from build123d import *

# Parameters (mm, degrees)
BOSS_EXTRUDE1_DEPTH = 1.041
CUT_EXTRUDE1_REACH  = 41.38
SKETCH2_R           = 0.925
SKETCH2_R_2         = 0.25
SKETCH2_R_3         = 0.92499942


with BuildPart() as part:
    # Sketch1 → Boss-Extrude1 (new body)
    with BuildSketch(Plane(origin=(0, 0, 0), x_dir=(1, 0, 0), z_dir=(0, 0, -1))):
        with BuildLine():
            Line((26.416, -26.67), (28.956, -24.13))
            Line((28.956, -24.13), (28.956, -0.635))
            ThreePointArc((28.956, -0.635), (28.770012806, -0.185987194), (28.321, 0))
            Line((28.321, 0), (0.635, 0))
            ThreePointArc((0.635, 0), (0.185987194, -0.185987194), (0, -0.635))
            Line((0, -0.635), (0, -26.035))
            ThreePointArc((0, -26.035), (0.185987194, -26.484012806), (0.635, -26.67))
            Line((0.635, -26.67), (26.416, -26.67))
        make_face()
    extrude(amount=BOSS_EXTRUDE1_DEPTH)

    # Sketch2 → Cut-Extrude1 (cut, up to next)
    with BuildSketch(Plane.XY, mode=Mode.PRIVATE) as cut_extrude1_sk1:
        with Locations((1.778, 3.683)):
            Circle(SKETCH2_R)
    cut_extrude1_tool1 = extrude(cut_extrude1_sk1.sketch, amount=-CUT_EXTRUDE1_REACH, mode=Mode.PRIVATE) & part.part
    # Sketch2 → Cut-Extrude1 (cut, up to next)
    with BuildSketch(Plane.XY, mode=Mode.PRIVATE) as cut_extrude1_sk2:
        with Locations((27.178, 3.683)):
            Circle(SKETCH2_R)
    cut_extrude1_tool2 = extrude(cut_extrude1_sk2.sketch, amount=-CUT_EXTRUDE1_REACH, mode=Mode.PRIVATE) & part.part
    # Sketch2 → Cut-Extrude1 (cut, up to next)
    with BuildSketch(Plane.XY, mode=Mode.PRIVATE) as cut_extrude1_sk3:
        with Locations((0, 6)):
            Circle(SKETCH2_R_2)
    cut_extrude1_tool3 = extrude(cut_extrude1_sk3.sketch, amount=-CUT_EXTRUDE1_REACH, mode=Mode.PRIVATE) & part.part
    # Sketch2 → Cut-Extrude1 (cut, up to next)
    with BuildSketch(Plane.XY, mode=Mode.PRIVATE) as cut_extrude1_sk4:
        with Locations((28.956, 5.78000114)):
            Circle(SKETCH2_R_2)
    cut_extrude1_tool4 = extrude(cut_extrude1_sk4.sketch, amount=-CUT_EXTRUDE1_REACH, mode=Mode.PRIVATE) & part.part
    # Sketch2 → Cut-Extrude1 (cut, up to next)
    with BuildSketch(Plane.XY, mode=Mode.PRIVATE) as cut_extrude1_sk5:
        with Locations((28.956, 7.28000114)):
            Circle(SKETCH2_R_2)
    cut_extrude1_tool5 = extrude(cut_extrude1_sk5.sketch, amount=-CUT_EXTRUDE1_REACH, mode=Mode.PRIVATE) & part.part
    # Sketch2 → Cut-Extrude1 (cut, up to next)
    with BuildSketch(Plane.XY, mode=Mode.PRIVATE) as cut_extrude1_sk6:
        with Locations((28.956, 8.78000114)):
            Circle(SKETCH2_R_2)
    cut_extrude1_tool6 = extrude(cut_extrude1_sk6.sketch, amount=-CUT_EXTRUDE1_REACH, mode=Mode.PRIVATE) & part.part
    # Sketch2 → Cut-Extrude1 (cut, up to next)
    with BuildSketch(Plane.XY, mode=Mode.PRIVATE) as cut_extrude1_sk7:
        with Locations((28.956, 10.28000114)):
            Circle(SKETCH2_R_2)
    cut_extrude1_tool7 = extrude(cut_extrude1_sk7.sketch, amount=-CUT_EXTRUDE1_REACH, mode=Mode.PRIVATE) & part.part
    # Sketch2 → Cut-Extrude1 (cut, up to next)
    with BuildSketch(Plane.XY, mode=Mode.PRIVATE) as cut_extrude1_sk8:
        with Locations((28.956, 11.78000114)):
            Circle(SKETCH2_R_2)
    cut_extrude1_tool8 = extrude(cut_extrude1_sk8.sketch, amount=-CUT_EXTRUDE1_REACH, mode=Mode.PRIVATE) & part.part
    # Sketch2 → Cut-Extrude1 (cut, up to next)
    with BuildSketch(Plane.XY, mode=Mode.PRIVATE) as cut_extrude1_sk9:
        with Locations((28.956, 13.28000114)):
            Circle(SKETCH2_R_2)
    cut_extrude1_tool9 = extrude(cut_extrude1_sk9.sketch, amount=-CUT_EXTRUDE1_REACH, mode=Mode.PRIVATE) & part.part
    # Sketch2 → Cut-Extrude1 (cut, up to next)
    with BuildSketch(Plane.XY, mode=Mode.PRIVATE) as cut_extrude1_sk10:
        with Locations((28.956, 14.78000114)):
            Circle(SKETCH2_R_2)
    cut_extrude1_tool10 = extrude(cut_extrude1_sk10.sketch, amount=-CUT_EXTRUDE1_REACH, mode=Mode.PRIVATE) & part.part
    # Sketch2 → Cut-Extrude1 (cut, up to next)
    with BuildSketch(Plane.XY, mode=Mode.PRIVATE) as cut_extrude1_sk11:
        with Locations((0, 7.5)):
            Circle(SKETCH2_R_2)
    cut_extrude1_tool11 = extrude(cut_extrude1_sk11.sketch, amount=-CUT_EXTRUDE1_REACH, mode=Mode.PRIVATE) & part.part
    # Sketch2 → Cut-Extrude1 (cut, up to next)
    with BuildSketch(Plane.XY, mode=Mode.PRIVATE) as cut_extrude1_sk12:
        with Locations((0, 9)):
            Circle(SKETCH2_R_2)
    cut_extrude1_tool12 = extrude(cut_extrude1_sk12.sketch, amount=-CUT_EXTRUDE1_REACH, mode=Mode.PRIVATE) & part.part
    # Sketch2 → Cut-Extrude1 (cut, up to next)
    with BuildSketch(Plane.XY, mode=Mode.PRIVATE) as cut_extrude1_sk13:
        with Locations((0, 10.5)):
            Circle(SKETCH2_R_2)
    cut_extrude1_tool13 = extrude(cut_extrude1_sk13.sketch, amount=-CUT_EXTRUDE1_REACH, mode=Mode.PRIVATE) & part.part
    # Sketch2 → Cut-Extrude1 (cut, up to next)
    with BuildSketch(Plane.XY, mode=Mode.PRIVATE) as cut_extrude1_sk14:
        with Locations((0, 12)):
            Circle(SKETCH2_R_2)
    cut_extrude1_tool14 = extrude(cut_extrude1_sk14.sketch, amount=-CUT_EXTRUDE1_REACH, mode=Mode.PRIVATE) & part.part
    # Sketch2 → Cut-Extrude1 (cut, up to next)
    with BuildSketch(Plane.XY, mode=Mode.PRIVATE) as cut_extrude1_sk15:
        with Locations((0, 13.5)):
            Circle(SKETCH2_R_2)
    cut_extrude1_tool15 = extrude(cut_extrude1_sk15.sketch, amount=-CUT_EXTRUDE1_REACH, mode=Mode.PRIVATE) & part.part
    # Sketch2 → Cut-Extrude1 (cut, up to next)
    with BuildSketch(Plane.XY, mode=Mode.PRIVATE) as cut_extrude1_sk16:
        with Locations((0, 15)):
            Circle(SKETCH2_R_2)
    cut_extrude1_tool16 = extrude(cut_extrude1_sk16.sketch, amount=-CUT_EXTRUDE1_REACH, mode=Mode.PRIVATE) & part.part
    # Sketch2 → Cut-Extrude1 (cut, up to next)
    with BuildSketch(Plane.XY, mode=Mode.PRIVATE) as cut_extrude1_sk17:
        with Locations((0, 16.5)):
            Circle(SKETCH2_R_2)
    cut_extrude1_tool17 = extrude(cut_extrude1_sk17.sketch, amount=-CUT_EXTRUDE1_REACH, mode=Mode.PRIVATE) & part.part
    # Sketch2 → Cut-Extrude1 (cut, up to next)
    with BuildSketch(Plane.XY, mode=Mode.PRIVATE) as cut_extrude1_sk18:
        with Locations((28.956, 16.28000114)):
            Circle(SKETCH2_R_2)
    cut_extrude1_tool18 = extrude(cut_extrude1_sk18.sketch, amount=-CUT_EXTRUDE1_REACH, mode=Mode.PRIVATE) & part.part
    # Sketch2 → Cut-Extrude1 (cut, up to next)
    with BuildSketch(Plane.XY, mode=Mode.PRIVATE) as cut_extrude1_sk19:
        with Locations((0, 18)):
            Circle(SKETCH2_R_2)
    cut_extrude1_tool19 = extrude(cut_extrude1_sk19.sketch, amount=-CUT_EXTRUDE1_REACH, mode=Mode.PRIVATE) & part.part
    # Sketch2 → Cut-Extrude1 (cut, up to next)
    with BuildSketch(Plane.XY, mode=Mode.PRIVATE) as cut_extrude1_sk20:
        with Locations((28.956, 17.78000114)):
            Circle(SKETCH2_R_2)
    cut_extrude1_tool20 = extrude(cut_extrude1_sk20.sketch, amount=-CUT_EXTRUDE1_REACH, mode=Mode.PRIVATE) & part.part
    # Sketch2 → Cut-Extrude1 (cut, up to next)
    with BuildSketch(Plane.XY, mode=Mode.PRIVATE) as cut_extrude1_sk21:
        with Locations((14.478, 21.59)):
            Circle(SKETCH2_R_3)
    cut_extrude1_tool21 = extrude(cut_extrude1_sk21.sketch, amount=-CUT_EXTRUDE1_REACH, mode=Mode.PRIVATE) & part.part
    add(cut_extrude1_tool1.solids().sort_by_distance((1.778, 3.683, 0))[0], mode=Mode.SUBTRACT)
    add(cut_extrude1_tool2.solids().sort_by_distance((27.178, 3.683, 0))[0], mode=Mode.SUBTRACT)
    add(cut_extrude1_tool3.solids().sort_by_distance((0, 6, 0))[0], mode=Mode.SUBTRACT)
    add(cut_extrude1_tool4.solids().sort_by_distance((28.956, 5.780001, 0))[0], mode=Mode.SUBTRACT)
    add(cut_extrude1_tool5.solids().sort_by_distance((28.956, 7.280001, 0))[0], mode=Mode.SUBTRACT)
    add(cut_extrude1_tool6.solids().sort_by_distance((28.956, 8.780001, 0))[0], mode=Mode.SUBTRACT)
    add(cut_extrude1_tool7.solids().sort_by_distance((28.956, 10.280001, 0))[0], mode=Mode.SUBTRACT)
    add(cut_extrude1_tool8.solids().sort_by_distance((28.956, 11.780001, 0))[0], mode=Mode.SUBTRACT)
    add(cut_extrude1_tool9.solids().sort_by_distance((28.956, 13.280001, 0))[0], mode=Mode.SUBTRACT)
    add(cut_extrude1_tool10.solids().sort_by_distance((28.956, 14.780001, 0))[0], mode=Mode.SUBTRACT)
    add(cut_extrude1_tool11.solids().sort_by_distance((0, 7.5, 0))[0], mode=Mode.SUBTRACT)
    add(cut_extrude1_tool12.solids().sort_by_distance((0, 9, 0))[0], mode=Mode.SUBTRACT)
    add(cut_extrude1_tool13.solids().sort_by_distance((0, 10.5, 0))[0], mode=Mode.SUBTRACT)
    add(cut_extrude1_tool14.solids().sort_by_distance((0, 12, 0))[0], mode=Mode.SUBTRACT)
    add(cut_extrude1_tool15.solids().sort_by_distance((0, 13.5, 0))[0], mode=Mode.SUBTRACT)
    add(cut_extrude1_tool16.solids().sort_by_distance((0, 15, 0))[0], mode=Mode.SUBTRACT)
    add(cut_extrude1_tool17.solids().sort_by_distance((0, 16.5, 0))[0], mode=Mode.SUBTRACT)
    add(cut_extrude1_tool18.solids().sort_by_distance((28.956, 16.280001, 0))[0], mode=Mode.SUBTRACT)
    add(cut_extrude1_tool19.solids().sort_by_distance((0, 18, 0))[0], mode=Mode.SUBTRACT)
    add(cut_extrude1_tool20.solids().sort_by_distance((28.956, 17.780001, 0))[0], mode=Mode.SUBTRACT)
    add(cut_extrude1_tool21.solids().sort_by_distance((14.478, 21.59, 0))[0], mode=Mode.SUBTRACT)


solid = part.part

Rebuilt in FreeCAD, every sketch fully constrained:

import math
import FreeCAD as App
import Part
import Sketcher

V = App.Vector
Q = App.Units.Quantity

doc = App.newDocument("Part")
body = doc.addObject("PartDesign::Body", "Body")

# Sketch on XY plane
sketch1 = doc.addObject("Sketcher::SketchObject", "Sketch")
body.addObject(sketch1)
sketch1.AttachmentSupport = (doc.XY_Plane, [""])
sketch1.MapMode = "FlatFace"
sketch1.addGeometry([
    Part.LineSegment(V(26.4, 26.7, 0), V(29, 24.1, 0)),  # 0
    Part.LineSegment(V(29, 24.1, 0), V(29, 0.6, 0)),  # 1
    Part.ArcOfCircle(Part.Circle(V(28.3, 0.6, 0), V(0, 0, 1), 0.6), math.radians(-90), math.radians(0)),  # 2
    Part.LineSegment(V(28.3, 0, 0), V(0.6, 0, 0)),  # 3
    Part.ArcOfCircle(Part.Circle(V(0.6, 0.6, 0), V(0, 0, 1), 0.6), math.radians(180), math.radians(270)),  # 4
    Part.LineSegment(V(0, 0.6, 0), V(0, 26, 0)),  # 5
    Part.ArcOfCircle(Part.Circle(V(0.6, 26, 0), V(0, 0, 1), 0.6), math.radians(90), math.radians(180)),  # 6
    Part.LineSegment(V(0.6, 26.7, 0), V(26.4, 26.7, 0)),  # 7
], False)
sketch1.addConstraint([
    Sketcher.Constraint("Coincident", 0, 2, 1, 1),
    Sketcher.Constraint("Tangent", 1, 2, 2, 2),
    Sketcher.Constraint("Tangent", 2, 1, 3, 1),
    Sketcher.Constraint("Tangent", 3, 2, 4, 2),
    Sketcher.Constraint("Tangent", 4, 1, 5, 1),
    Sketcher.Constraint("Tangent", 5, 2, 6, 2),
    Sketcher.Constraint("Tangent", 6, 1, 7, 1),
    Sketcher.Constraint("Coincident", 7, 2, 0, 1),
    Sketcher.Constraint("Vertical", 1),
    Sketcher.Constraint("Horizontal", 3),
    Sketcher.Constraint("Vertical", 5),
    Sketcher.Constraint("Horizontal", 7),
    Sketcher.Constraint("Equal", 2, 4),
    Sketcher.Constraint("Equal", 4, 6),
    Sketcher.Constraint("PointOnObject", 2, 1, -1),
    Sketcher.Constraint("PointOnObject", 4, 1, -2),
    Sketcher.Constraint("DistanceY", 5, 1, 5, 2, Q("1 in")),
    Sketcher.Constraint("Angle", 0, Q("-45 deg")),
    Sketcher.Constraint("Radius", 2, Q("0.025 in")),
    Sketcher.Constraint("DistanceX", 3, 2, 3, 1, Q("1.09 in")),
    Sketcher.Constraint("DistanceX", 7, 2, 0, 2, Q("0.1 in")),
])
pad1 = doc.addObject("PartDesign::Pad", "Pad")
body.addObject(pad1)
pad1.Profile = sketch1
pad1.Length = 1.041
pad1.Reversed = True

# Sketch on XY plane
sketch2 = doc.addObject("Sketcher::SketchObject", "Sketch001")
body.addObject(sketch2)
sketch2.AttachmentSupport = (doc.XY_Plane, [""])
sketch2.MapMode = "FlatFace"
sketch2.addGeometry(Part.Circle(V(1.8, 3.7, 0), V(0, 0, 1), 0.9), False)
sketch2.addConstraint([
    Sketcher.Constraint("Diameter", 0, Q("1.85 mm")),
    Sketcher.Constraint("DistanceX", -1, 1, 0, 3, Q("0.07 in")),
    Sketcher.Constraint("DistanceY", -1, 1, 0, 3, Q("0.145 in")),
])
pocket1 = doc.addObject("PartDesign::Pocket", "Pocket")
body.addObject(pocket1)
pocket1.Profile = sketch2
pocket1.Type = "UpToFirst"

# Sketch on XY plane
sketch3 = doc.addObject("Sketcher::SketchObject", "Sketch002")
body.addObject(sketch3)
sketch3.AttachmentSupport = (doc.XY_Plane, [""])
sketch3.MapMode = "FlatFace"
sketch3.addGeometry(Part.Circle(V(27.2, 3.7, 0), V(0, 0, 1), 0.9), False)
sketch3.addConstraint([
    Sketcher.Constraint("Diameter", 0, Q("1.85 mm")),
    Sketcher.Constraint("DistanceX", -1, 1, 0, 3, Q("1.07 in")),
    Sketcher.Constraint("DistanceY", -1, 1, 0, 3, Q("0.145 in")),
])
pocket2 = doc.addObject("PartDesign::Pocket", "Pocket001")
body.addObject(pocket2)
pocket2.Profile = sketch3
pocket2.Type = "UpToFirst"

# Sketch on XY plane
sketch4 = doc.addObject("Sketcher::SketchObject", "Sketch003")
body.addObject(sketch4)
sketch4.AttachmentSupport = (doc.XY_Plane, [""])
sketch4.MapMode = "FlatFace"
sketch4.addGeometry(Part.Circle(V(0, 6, 0), V(0, 0, 1), 0.25), False)
sketch4.addConstraint([
    Sketcher.Constraint("PointOnObject", 0, 3, -2),
    Sketcher.Constraint("Diameter", 0, Q("0.5 mm")),
    Sketcher.Constraint("DistanceY", -1, 1, 0, 3, Q("6 mm")),
])
pocket3 = doc.addObject("PartDesign::Pocket", "Pocket002")
body.addObject(pocket3)
pocket3.Profile = sketch4
pocket3.Type = "UpToFirst"

# Sketch on XY plane
sketch5 = doc.addObject("Sketcher::SketchObject", "Sketch004")
body.addObject(sketch5)
sketch5.AttachmentSupport = (doc.XY_Plane, [""])
sketch5.MapMode = "FlatFace"
sketch5.addGeometry(Part.Circle(V(28.96, 5.78, 0), V(0, 0, 1), 0.25), False)
sketch5.addConstraint([
    Sketcher.Constraint("Diameter", 0, Q("0.5 mm")),
    Sketcher.Constraint("DistanceX", -1, 1, 0, 3, Q("1.14 in")),
    Sketcher.Constraint("DistanceY", -1, 1, 0, 3, Q("5.780001 mm")),
])
pocket4 = doc.addObject("PartDesign::Pocket", "Pocket003")
body.addObject(pocket4)
pocket4.Profile = sketch5
pocket4.Type = "UpToFirst"

# Sketch on XY plane
sketch6 = doc.addObject("Sketcher::SketchObject", "Sketch005")
body.addObject(sketch6)
sketch6.AttachmentSupport = (doc.XY_Plane, [""])
sketch6.MapMode = "FlatFace"
sketch6.addGeometry(Part.Circle(V(28.96, 7.28, 0), V(0, 0, 1), 0.25), False)
sketch6.addConstraint([
    Sketcher.Constraint("Diameter", 0, Q("0.5 mm")),
    Sketcher.Constraint("DistanceX", -1, 1, 0, 3, Q("1.14 in")),
    Sketcher.Constraint("DistanceY", -1, 1, 0, 3, Q("7.280001 mm")),
])
pocket5 = doc.addObject("PartDesign::Pocket", "Pocket004")
body.addObject(pocket5)
pocket5.Profile = sketch6
pocket5.Type = "UpToFirst"

# Sketch on XY plane
sketch7 = doc.addObject("Sketcher::SketchObject", "Sketch006")
body.addObject(sketch7)
sketch7.AttachmentSupport = (doc.XY_Plane, [""])
sketch7.MapMode = "FlatFace"
sketch7.addGeometry(Part.Circle(V(28.96, 8.78, 0), V(0, 0, 1), 0.25), False)
sketch7.addConstraint([
    Sketcher.Constraint("Diameter", 0, Q("0.5 mm")),
    Sketcher.Constraint("DistanceX", -1, 1, 0, 3, Q("1.14 in")),
    Sketcher.Constraint("DistanceY", -1, 1, 0, 3, Q("8.780001 mm")),
])
pocket6 = doc.addObject("PartDesign::Pocket", "Pocket005")
body.addObject(pocket6)
pocket6.Profile = sketch7
pocket6.Type = "UpToFirst"

# Sketch on XY plane
sketch8 = doc.addObject("Sketcher::SketchObject", "Sketch007")
body.addObject(sketch8)
sketch8.AttachmentSupport = (doc.XY_Plane, [""])
sketch8.MapMode = "FlatFace"
sketch8.addGeometry(Part.Circle(V(28.96, 10.28, 0), V(0, 0, 1), 0.25), False)
sketch8.addConstraint([
    Sketcher.Constraint("Diameter", 0, Q("0.5 mm")),
    Sketcher.Constraint("DistanceX", -1, 1, 0, 3, Q("1.14 in")),
    Sketcher.Constraint("DistanceY", -1, 1, 0, 3, Q("10.280001 mm")),
])
pocket7 = doc.addObject("PartDesign::Pocket", "Pocket006")
body.addObject(pocket7)
pocket7.Profile = sketch8
pocket7.Type = "UpToFirst"

# Sketch on XY plane
sketch9 = doc.addObject("Sketcher::SketchObject", "Sketch008")
body.addObject(sketch9)
sketch9.AttachmentSupport = (doc.XY_Plane, [""])
sketch9.MapMode = "FlatFace"
sketch9.addGeometry(Part.Circle(V(28.96, 11.78, 0), V(0, 0, 1), 0.25), False)
sketch9.addConstraint([
    Sketcher.Constraint("Diameter", 0, Q("0.5 mm")),
    Sketcher.Constraint("DistanceX", -1, 1, 0, 3, Q("1.14 in")),
    Sketcher.Constraint("DistanceY", -1, 1, 0, 3, Q("11.780001 mm")),
])
pocket8 = doc.addObject("PartDesign::Pocket", "Pocket007")
body.addObject(pocket8)
pocket8.Profile = sketch9
pocket8.Type = "UpToFirst"

# Sketch on XY plane
sketch10 = doc.addObject("Sketcher::SketchObject", "Sketch009")
body.addObject(sketch10)
sketch10.AttachmentSupport = (doc.XY_Plane, [""])
sketch10.MapMode = "FlatFace"
sketch10.addGeometry(Part.Circle(V(28.96, 13.28, 0), V(0, 0, 1), 0.25), False)
sketch10.addConstraint([
    Sketcher.Constraint("Diameter", 0, Q("0.5 mm")),
    Sketcher.Constraint("DistanceX", -1, 1, 0, 3, Q("1.14 in")),
    Sketcher.Constraint("DistanceY", -1, 1, 0, 3, Q("13.280001 mm")),
])
pocket9 = doc.addObject("PartDesign::Pocket", "Pocket008")
body.addObject(pocket9)
pocket9.Profile = sketch10
pocket9.Type = "UpToFirst"

# Sketch on XY plane
sketch11 = doc.addObject("Sketcher::SketchObject", "Sketch010")
body.addObject(sketch11)
sketch11.AttachmentSupport = (doc.XY_Plane, [""])
sketch11.MapMode = "FlatFace"
sketch11.addGeometry(Part.Circle(V(28.96, 14.78, 0), V(0, 0, 1), 0.25), False)
sketch11.addConstraint([
    Sketcher.Constraint("Diameter", 0, Q("0.5 mm")),
    Sketcher.Constraint("DistanceX", -1, 1, 0, 3, Q("1.14 in")),
    Sketcher.Constraint("DistanceY", -1, 1, 0, 3, Q("14.780001 mm")),
])
pocket10 = doc.addObject("PartDesign::Pocket", "Pocket009")
body.addObject(pocket10)
pocket10.Profile = sketch11
pocket10.Type = "UpToFirst"

# Sketch on XY plane
sketch12 = doc.addObject("Sketcher::SketchObject", "Sketch011")
body.addObject(sketch12)
sketch12.AttachmentSupport = (doc.XY_Plane, [""])
sketch12.MapMode = "FlatFace"
sketch12.addGeometry(Part.Circle(V(0, 7.5, 0), V(0, 0, 1), 0.25), False)
sketch12.addConstraint([
    Sketcher.Constraint("PointOnObject", 0, 3, -2),
    Sketcher.Constraint("Diameter", 0, Q("0.5 mm")),
    Sketcher.Constraint("DistanceY", -1, 1, 0, 3, Q("7.5 mm")),
])
pocket11 = doc.addObject("PartDesign::Pocket", "Pocket010")
body.addObject(pocket11)
pocket11.Profile = sketch12
pocket11.Type = "UpToFirst"

# Sketch on XY plane
sketch13 = doc.addObject("Sketcher::SketchObject", "Sketch012")
body.addObject(sketch13)
sketch13.AttachmentSupport = (doc.XY_Plane, [""])
sketch13.MapMode = "FlatFace"
sketch13.addGeometry(Part.Circle(V(0, 9, 0), V(0, 0, 1), 0.25), False)
sketch13.addConstraint([
    Sketcher.Constraint("PointOnObject", 0, 3, -2),
    Sketcher.Constraint("Diameter", 0, Q("0.5 mm")),
    Sketcher.Constraint("DistanceY", -1, 1, 0, 3, Q("9 mm")),
])
pocket12 = doc.addObject("PartDesign::Pocket", "Pocket011")
body.addObject(pocket12)
pocket12.Profile = sketch13
pocket12.Type = "UpToFirst"

# Sketch on XY plane
sketch14 = doc.addObject("Sketcher::SketchObject", "Sketch013")
body.addObject(sketch14)
sketch14.AttachmentSupport = (doc.XY_Plane, [""])
sketch14.MapMode = "FlatFace"
sketch14.addGeometry(Part.Circle(V(0, 10.5, 0), V(0, 0, 1), 0.25), False)
sketch14.addConstraint([
    Sketcher.Constraint("PointOnObject", 0, 3, -2),
    Sketcher.Constraint("Diameter", 0, Q("0.5 mm")),
    Sketcher.Constraint("DistanceY", -1, 1, 0, 3, Q("10.5 mm")),
])
pocket13 = doc.addObject("PartDesign::Pocket", "Pocket012")
body.addObject(pocket13)
pocket13.Profile = sketch14
pocket13.Type = "UpToFirst"

# Sketch on XY plane
sketch15 = doc.addObject("Sketcher::SketchObject", "Sketch014")
body.addObject(sketch15)
sketch15.AttachmentSupport = (doc.XY_Plane, [""])
sketch15.MapMode = "FlatFace"
sketch15.addGeometry(Part.Circle(V(0, 12, 0), V(0, 0, 1), 0.25), False)
sketch15.addConstraint([
    Sketcher.Constraint("PointOnObject", 0, 3, -2),
    Sketcher.Constraint("Diameter", 0, Q("0.5 mm")),
    Sketcher.Constraint("DistanceY", -1, 1, 0, 3, Q("12 mm")),
])
pocket14 = doc.addObject("PartDesign::Pocket", "Pocket013")
body.addObject(pocket14)
pocket14.Profile = sketch15
pocket14.Type = "UpToFirst"

# Sketch on XY plane
sketch16 = doc.addObject("Sketcher::SketchObject", "Sketch015")
body.addObject(sketch16)
sketch16.AttachmentSupport = (doc.XY_Plane, [""])
sketch16.MapMode = "FlatFace"
sketch16.addGeometry(Part.Circle(V(0, 13.5, 0), V(0, 0, 1), 0.25), False)
sketch16.addConstraint([
    Sketcher.Constraint("PointOnObject", 0, 3, -2),
    Sketcher.Constraint("Diameter", 0, Q("0.5 mm")),
    Sketcher.Constraint("DistanceY", -1, 1, 0, 3, Q("13.5 mm")),
])
pocket15 = doc.addObject("PartDesign::Pocket", "Pocket014")
body.addObject(pocket15)
pocket15.Profile = sketch16
pocket15.Type = "UpToFirst"

# Sketch on XY plane
sketch17 = doc.addObject("Sketcher::SketchObject", "Sketch016")
body.addObject(sketch17)
sketch17.AttachmentSupport = (doc.XY_Plane, [""])
sketch17.MapMode = "FlatFace"
sketch17.addGeometry(Part.Circle(V(0, 15, 0), V(0, 0, 1), 0.25), False)
sketch17.addConstraint([
    Sketcher.Constraint("PointOnObject", 0, 3, -2),
    Sketcher.Constraint("Diameter", 0, Q("0.5 mm")),
    Sketcher.Constraint("DistanceY", -1, 1, 0, 3, Q("15 mm")),
])
pocket16 = doc.addObject("PartDesign::Pocket", "Pocket015")
body.addObject(pocket16)
pocket16.Profile = sketch17
pocket16.Type = "UpToFirst"

# Sketch on XY plane
sketch18 = doc.addObject("Sketcher::SketchObject", "Sketch017")
body.addObject(sketch18)
sketch18.AttachmentSupport = (doc.XY_Plane, [""])
sketch18.MapMode = "FlatFace"
sketch18.addGeometry(Part.Circle(V(0, 16.5, 0), V(0, 0, 1), 0.25), False)
sketch18.addConstraint([
    Sketcher.Constraint("PointOnObject", 0, 3, -2),
    Sketcher.Constraint("Diameter", 0, Q("0.5 mm")),
    Sketcher.Constraint("DistanceY", -1, 1, 0, 3, Q("16.5 mm")),
])
pocket17 = doc.addObject("PartDesign::Pocket", "Pocket016")
body.addObject(pocket17)
pocket17.Profile = sketch18
pocket17.Type = "UpToFirst"

# Sketch on XY plane
sketch19 = doc.addObject("Sketcher::SketchObject", "Sketch018")
body.addObject(sketch19)
sketch19.AttachmentSupport = (doc.XY_Plane, [""])
sketch19.MapMode = "FlatFace"
sketch19.addGeometry(Part.Circle(V(28.96, 16.28, 0), V(0, 0, 1), 0.25), False)
sketch19.addConstraint([
    Sketcher.Constraint("Diameter", 0, Q("0.5 mm")),
    Sketcher.Constraint("DistanceX", -1, 1, 0, 3, Q("1.14 in")),
    Sketcher.Constraint("DistanceY", -1, 1, 0, 3, Q("16.280001 mm")),
])
pocket18 = doc.addObject("PartDesign::Pocket", "Pocket017")
body.addObject(pocket18)
pocket18.Profile = sketch19
pocket18.Type = "UpToFirst"

# Sketch on XY plane
sketch20 = doc.addObject("Sketcher::SketchObject", "Sketch019")
body.addObject(sketch20)
sketch20.AttachmentSupport = (doc.XY_Plane, [""])
sketch20.MapMode = "FlatFace"
sketch20.addGeometry(Part.Circle(V(0, 18, 0), V(0, 0, 1), 0.25), False)
sketch20.addConstraint([
    Sketcher.Constraint("PointOnObject", 0, 3, -2),
    Sketcher.Constraint("Diameter", 0, Q("0.5 mm")),
    Sketcher.Constraint("DistanceY", -1, 1, 0, 3, Q("18 mm")),
])
pocket19 = doc.addObject("PartDesign::Pocket", "Pocket018")
body.addObject(pocket19)
pocket19.Profile = sketch20
pocket19.Type = "UpToFirst"

# Sketch on XY plane
sketch21 = doc.addObject("Sketcher::SketchObject", "Sketch020")
body.addObject(sketch21)
sketch21.AttachmentSupport = (doc.XY_Plane, [""])
sketch21.MapMode = "FlatFace"
sketch21.addGeometry(Part.Circle(V(28.96, 17.78, 0), V(0, 0, 1), 0.25), False)
sketch21.addConstraint([
    Sketcher.Constraint("DistanceY", -1, 1, 0, 3, Q("0.7 in")),
    Sketcher.Constraint("Diameter", 0, Q("0.5 mm")),
    Sketcher.Constraint("DistanceX", -1, 1, 0, 3, Q("1.14 in")),
])
pocket20 = doc.addObject("PartDesign::Pocket", "Pocket019")
body.addObject(pocket20)
pocket20.Profile = sketch21
pocket20.Type = "UpToFirst"

# Sketch on XY plane
sketch22 = doc.addObject("Sketcher::SketchObject", "Sketch021")
body.addObject(sketch22)
sketch22.AttachmentSupport = (doc.XY_Plane, [""])
sketch22.MapMode = "FlatFace"
sketch22.addGeometry(Part.Circle(V(14.5, 21.6, 0), V(0, 0, 1), 0.9), False)
sketch22.addConstraint([
    Sketcher.Constraint("Diameter", 0, Q("1.849999 mm")),
    Sketcher.Constraint("DistanceX", -1, 1, 0, 3, Q("0.57 in")),
    Sketcher.Constraint("DistanceY", -1, 1, 0, 3, Q("0.85 in")),
])
pocket21 = doc.addObject("PartDesign::Pocket", "Pocket020")
body.addObject(pocket21)
pocket21.Profile = sketch22
pocket21.Type = "UpToFirst"

doc.recompute()
